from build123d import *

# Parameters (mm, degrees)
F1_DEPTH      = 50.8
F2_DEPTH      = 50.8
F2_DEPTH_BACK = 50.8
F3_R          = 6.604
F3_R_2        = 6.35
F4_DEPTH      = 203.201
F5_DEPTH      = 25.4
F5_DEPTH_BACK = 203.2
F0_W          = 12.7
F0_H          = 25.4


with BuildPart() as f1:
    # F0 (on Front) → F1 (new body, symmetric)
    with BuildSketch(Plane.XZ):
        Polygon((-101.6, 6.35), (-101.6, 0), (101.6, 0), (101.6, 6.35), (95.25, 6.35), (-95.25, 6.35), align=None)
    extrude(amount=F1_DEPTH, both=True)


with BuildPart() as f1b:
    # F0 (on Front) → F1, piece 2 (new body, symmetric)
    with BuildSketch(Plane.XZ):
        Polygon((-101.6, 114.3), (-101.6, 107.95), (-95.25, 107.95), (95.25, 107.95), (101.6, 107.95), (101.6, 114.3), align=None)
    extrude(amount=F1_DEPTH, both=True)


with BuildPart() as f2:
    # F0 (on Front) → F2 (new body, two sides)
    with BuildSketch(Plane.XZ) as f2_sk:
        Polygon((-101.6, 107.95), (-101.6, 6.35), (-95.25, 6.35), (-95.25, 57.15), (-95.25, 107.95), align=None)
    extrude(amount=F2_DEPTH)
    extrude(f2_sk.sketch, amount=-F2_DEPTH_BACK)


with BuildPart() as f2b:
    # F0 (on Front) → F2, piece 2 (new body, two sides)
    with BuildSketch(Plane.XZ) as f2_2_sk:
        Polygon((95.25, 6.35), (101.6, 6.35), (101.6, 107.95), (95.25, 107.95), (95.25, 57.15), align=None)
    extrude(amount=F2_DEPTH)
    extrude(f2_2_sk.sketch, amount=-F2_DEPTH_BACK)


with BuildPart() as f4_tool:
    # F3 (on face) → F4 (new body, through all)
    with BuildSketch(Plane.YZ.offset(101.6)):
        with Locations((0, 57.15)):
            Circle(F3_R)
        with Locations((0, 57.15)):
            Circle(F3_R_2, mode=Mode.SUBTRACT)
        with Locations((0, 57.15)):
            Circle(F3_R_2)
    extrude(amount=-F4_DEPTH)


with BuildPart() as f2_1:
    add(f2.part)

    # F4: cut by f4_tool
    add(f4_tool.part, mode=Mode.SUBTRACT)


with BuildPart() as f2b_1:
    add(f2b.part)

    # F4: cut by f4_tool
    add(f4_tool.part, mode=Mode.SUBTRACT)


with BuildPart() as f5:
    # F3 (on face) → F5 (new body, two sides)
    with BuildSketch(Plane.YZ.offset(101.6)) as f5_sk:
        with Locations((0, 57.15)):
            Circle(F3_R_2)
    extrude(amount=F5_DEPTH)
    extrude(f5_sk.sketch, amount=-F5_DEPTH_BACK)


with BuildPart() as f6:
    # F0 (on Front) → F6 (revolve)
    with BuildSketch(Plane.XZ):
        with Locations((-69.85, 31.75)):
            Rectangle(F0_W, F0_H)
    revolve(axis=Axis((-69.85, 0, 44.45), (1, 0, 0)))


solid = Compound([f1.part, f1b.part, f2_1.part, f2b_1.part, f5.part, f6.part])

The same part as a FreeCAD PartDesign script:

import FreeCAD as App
import Part
import Sketcher
from FreeCAD import Vector
Q = App.Units.Quantity


def add_polygon(sketch, points):
    """Adds a closed chain of lines whose ends are joined by coincident constraints."""
    first, n = sketch.GeometryCount, len(points)
    for a, b in zip(points, points[1:] + points[:1]):
        sketch.addGeometry(Part.LineSegment(App.Vector(*a, 0), App.Vector(*b, 0)), False)
    for i in range(n):
        sketch.addConstraint(Sketcher.Constraint("Coincident", first + i, 2, first + (i + 1) % n, 1))

doc = App.newDocument("Part")
body = doc.addObject("PartDesign::Body", "Body")

# Sketch on XZ plane
sketch1 = body.newObject("Sketcher::SketchObject", "Sketch")
sketch1.AttachmentSupport = (doc.getObject("XZ_Plane"), [""])
sketch1.MapMode = "FlatFace"
add_polygon(sketch1, [(-102, 6), (-102, 0), (102, 0), (102, 6)])  # lines 0-3
sketch1.addConstraint(Sketcher.Constraint("Vertical", 0))
sketch1.addConstraint(Sketcher.Constraint("Horizontal", 1))
sketch1.addConstraint(Sketcher.Constraint("Vertical", 2))
sketch1.addConstraint(Sketcher.Constraint("Horizontal", 3))
sketch1.addConstraint(Sketcher.Constraint("Symmetric", 0, 2, 1, 2, -1, 1))
sketch1.addConstraint(Sketcher.Constraint("DistanceX", 1, 1, 1, 2, Q("8 in")))
sketch1.addConstraint(Sketcher.Constraint("DistanceY", 0, 2, 0, 1, Q("0.25 in")))
pad1 = body.newObject("PartDesign::Pad", "Pad")
pad1.Profile = sketch1
pad1.Length = Q("4 in")
pad1.Midplane = True
body2 = doc.addObject("PartDesign::Body", "Body001")

# Sketch on XZ plane
sketch2 = body2.newObject("Sketcher::SketchObject", "Sketch001")
sketch2.AttachmentSupport = (doc.getObject("XZ_Plane001"), [""])
sketch2.MapMode = "FlatFace"
add_polygon(sketch2, [(-102, 114), (-102, 108), (102, 108), (102, 114)])  # lines 0-3
sketch2.addConstraint(Sketcher.Constraint("Vertical", 0))
sketch2.addConstraint(Sketcher.Constraint("Horizontal", 1))
sketch2.addConstraint(Sketcher.Constraint("Vertical", 2))
sketch2.addConstraint(Sketcher.Constraint("Horizontal", 3))
sketch2.addConstraint(Sketcher.Constraint("DistanceX", 1, 1, 1, 2, Q("8 in")))
sketch2.addConstraint(Sketcher.Constraint("DistanceX", 0, 2, -1, 1, Q("4 in")))
sketch2.addConstraint(Sketcher.Constraint("DistanceY", 0, 2, 0, 1, Q("0.25 in")))
sketch2.addConstraint(Sketcher.Constraint("DistanceY", -1, 1, 2, 2, Q("4.5 in")))
pad2 = body2.newObject("PartDesign::Pad", "Pad001")
pad2.Profile = sketch2
pad2.Length = Q("4 in")
pad2.Midplane = True
body3 = doc.addObject("PartDesign::Body", "Body002")

# Sketch on XZ plane
sketch3 = body3.newObject("Sketcher::SketchObject", "Sketch002")
sketch3.AttachmentSupport = (doc.getObject("XZ_Plane002"), [""])
sketch3.MapMode = "FlatFace"
add_polygon(sketch3, [(-102, 108), (-102, 6), (-95, 6), (-95, 108)])  # lines 0-3
sketch3.addConstraint(Sketcher.Constraint("Vertical", 0))
sketch3.addConstraint(Sketcher.Constraint("Horizontal", 1))
sketch3.addConstraint(Sketcher.Constraint("Vertical", 2))
sketch3.addConstraint(Sketcher.Constraint("Horizontal", 3))
sketch3.addConstraint(Sketcher.Constraint("DistanceY", 0, 2, 0, 1, Q("4 in")))
sketch3.addConstraint(Sketcher.Constraint("DistanceX", 0, 2, -1, 1, Q("4 in")))
sketch3.addConstraint(Sketcher.Constraint("DistanceX", 1, 1, 1, 2, Q("0.25 in")))
sketch3.addConstraint(Sketcher.Constraint("DistanceY", -1, 1, 0, 2, Q("0.25 in")))
pad3 = body3.newObject("PartDesign::Pad", "Pad002")
pad3.Profile = sketch3
pad3.Type = "TwoLengths"
pad3.Length = Q("2 in")
pad3.Length2 = Q("2 in")
body4 = doc.addObject("PartDesign::Body", "Body003")

# Sketch on XZ plane
sketch4 = body4.newObject("Sketcher::SketchObject", "Sketch003")
sketch4.AttachmentSupport = (doc.getObject("XZ_Plane003"), [""])
sketch4.MapMode = "FlatFace"
add_polygon(sketch4, [(95, 6), (102, 6), (102, 108), (95, 108)])  # lines 0-3
sketch4.addConstraint(Sketcher.Constraint("Horizontal", 0))
sketch4.addConstraint(Sketcher.Constraint("Vertical", 1))
sketch4.addConstraint(Sketcher.Constraint("Horizontal", 2))
sketch4.addConstraint(Sketcher.Constraint("Vertical", 3))
sketch4.addConstraint(Sketcher.Constraint("DistanceY", 1, 1, 1, 2, Q("4 in")))
sketch4.addConstraint(Sketcher.Constraint("DistanceX", -1, 1, 0, 2, Q("4 in")))
sketch4.addConstraint(Sketcher.Constraint("DistanceX", 0, 1, 0, 2, Q("0.25 in")))
sketch4.addConstraint(Sketcher.Constraint("DistanceY", -1, 1, 0, 2, Q("0.25 in")))
pad4 = body4.newObject("PartDesign::Pad", "Pad003")
pad4.Profile = sketch4
pad4.Type = "TwoLengths"
pad4.Length = Q("2 in")
pad4.Length2 = Q("2 in")
body5 = doc.addObject("PartDesign::Body", "Body004")

# Sketch on YZ plane
sketch5 = body5.newObject("Sketcher::SketchObject", "Sketch004")
sketch5.AttachmentSupport = (doc.getObject("YZ_Plane004"), [""])
sketch5.MapMode = "FlatFace"
sketch5.AttachmentOffset = App.Placement(Vector(0, 0, 4 * 25.4), App.Rotation())
sketch5.addGeometry(Part.Circle(Vector(0, 57, 0), Vector(0, 0, 1), 7), False)
sketch5.addConstraint(Sketcher.Constraint("PointOnObject", 0, 3, -2))
sketch5.addConstraint(Sketcher.Constraint("Diameter", 0, Q("0.52 in")))
sketch5.addConstraint(Sketcher.Constraint("DistanceY", -1, 1, 0, 3, Q("2.25 in")))
pad5 = body5.newObject("PartDesign::Pad", "Pad004")
pad5.Profile = sketch5
pad5.Length = 203.201
pad5.Reversed = True
doc.recompute()

body6 = doc.addObject("PartDesign::Body", "Body005")
body6.BaseFeature = body5
boolean = body3.newObject("PartDesign::Boolean", "Boolean")
boolean.Type = "Cut"
boolean.addObjects([body6])
doc.recompute()

boolean2 = body4.newObject("PartDesign::Boolean", "Boolean001")
boolean2.Type = "Cut"
boolean2.addObjects([body5])
body7 = doc.addObject("PartDesign::Body", "Body006")

# Sketch on YZ plane
sketch6 = body7.newObject("Sketcher::SketchObject", "Sketch005")
sketch6.AttachmentSupport = (doc.getObject("YZ_Plane006"), [""])
sketch6.MapMode = "FlatFace"
sketch6.AttachmentOffset = App.Placement(Vector(0, 0, 4 * 25.4), App.Rotation())
sketch6.addGeometry(Part.Circle(Vector(0, 57, 0), Vector(0, 0, 1), 6), False)
sketch6.addConstraint(Sketcher.Constraint("PointOnObject", 0, 3, -2))
sketch6.addConstraint(Sketcher.Constraint("Diameter", 0, Q("0.5 in")))
sketch6.addConstraint(Sketcher.Constraint("DistanceY", -1, 1, 0, 3, Q("2.25 in")))
pad6 = body7.newObject("PartDesign::Pad", "Pad005")
pad6.Profile = sketch6
pad6.Type = "TwoLengths"
pad6.Length = Q("1 in")
pad6.Length2 = Q("8 in")
body8 = doc.addObject("PartDesign::Body", "Body007")

# Sketch on XZ plane
sketch7 = body8.newObject("Sketcher::SketchObject", "Sketch006")
sketch7.AttachmentSupport = (doc.getObject("XZ_Plane007"), [""])
sketch7.MapMode = "FlatFace"
add_polygon(sketch7, [(-76, 44), (-76, 19), (-64, 19), (-64, 44)])  # lines 0-3
sketch7.addGeometry(Part.LineSegment(Vector(-76, 44, 0), Vector(-64, 44, 0)), True)  # axis
sketch7.addConstraint(Sketcher.Constraint("Vertical", 0))
sketch7.addConstraint(Sketcher.Constraint("Horizontal", 1))
sketch7.addConstraint(Sketcher.Constraint("Vertical", 2))
sketch7.addConstraint(Sketcher.Constraint("Horizontal", 3))
sketch7.addConstraint(Sketcher.Constraint("Horizontal", 4))
sketch7.addConstraint(Sketcher.Constraint("Coincident", 4, 1, 3, 2))
sketch7.addConstraint(Sketcher.Constraint("Vertical", 1, 2, 4, 2))
sketch7.addConstraint(Sketcher.Constraint("DistanceY", 0, 2, 0, 1, Q("1 in")))
sketch7.addConstraint(Sketcher.Constraint("DistanceX", 1, 1, 1, 2, Q("0.5 in")))
sketch7.addConstraint(Sketcher.Constraint("DistanceX", 0, 2, -1, 1, Q("3 in")))
sketch7.addConstraint(Sketcher.Constraint("DistanceY", -1, 1, 0, 2, Q("0.75 in")))
revolution = body8.newObject("PartDesign::Revolution", "Revolution")
revolution.Profile = sketch7
revolution.ReferenceAxis = (sketch7, ["Axis0"])
revolution.Angle = 360

doc.recompute()
